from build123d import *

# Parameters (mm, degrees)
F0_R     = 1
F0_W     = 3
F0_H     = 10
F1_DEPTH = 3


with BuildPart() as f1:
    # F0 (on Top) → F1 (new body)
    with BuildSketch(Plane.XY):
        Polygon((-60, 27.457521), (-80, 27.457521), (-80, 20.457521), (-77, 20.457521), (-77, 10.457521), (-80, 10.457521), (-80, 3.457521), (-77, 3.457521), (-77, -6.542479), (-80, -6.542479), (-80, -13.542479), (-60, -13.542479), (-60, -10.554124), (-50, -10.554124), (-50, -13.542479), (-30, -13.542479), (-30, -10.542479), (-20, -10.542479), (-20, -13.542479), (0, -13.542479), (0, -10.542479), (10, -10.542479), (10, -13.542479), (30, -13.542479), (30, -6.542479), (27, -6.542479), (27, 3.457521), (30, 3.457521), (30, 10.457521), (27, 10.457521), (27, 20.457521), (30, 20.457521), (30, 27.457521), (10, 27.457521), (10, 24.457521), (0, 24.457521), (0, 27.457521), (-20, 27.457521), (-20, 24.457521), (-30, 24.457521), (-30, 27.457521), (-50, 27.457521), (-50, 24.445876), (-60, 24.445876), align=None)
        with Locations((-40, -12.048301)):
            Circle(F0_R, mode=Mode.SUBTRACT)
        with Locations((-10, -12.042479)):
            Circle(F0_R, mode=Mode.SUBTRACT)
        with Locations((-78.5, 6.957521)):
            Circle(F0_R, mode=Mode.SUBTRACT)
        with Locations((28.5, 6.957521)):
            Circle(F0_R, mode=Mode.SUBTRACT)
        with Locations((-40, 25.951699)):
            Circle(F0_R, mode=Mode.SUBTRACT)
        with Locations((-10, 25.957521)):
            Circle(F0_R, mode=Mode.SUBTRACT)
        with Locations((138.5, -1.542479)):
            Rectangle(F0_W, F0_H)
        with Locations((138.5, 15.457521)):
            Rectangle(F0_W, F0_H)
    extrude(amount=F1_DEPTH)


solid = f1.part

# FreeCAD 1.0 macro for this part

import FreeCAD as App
import Part
import Sketcher

doc = App.newDocument("Part")
body = doc.addObject("PartDesign::Body", "Body")
body.AllowCompound = True

sketch1 = doc.addObject("Sketcher::SketchObject", "Sketch")
body.addObject(sketch1)
sketch1.AttachmentSupport = (doc.XY_Plane, [""])
sketch1.MapMode = "FlatFace"
sketch1.addGeometry([
    Part.LineSegment(App.Vector(-60, 27.457521, 0), App.Vector(-80, 27.457521, 0)),
    Part.LineSegment(App.Vector(-80, 27.457521, 0), App.Vector(-80, 20.457521, 0)),
    Part.LineSegment(App.Vector(-80, 20.457521, 0), App.Vector(-77, 20.457521, 0)),
    Part.LineSegment(App.Vector(-77, 20.457521, 0), App.Vector(-77, 10.457521, 0)),
    Part.LineSegment(App.Vector(-77, 10.457521, 0), App.Vector(-80, 10.457521, 0)),
    Part.LineSegment(App.Vector(-80, 10.457521, 0), App.Vector(-80, 3.457521, 0)),
    Part.LineSegment(App.Vector(-80, 3.457521, 0), App.Vector(-77, 3.457521, 0)),
    Part.LineSegment(App.Vector(-77, 3.457521, 0), App.Vector(-77, -6.542479, 0)),
    Part.LineSegment(App.Vector(-77, -6.542479, 0), App.Vector(-80, -6.542479, 0)),
    Part.LineSegment(App.Vector(-80, -6.542479, 0), App.Vector(-80, -13.542479, 0)),
    Part.LineSegment(App.Vector(-80, -13.542479, 0), App.Vector(-60, -13.542479, 0)),
    Part.LineSegment(App.Vector(-60, -13.542479, 0), App.Vector(-60, -10.554124, 0)),
    Part.LineSegment(App.Vector(-60, -10.554124, 0), App.Vector(-50, -10.554124, 0)),
    Part.LineSegment(App.Vector(-50, -10.554124, 0), App.Vector(-50, -13.542479, 0)),
    Part.LineSegment(App.Vector(-50, -13.542479, 0), App.Vector(-30, -13.542479, 0)),
    Part.LineSegment(App.Vector(-30, -13.542479, 0), App.Vector(-30, -10.542479, 0)),
    Part.LineSegment(App.Vector(-30, -10.542479, 0), App.Vector(-20, -10.542479, 0)),
    Part.LineSegment(App.Vector(-20, -10.542479, 0), App.Vector(-20, -13.542479, 0)),
    Part.LineSegment(App.Vector(-20, -13.542479, 0), App.Vector(0, -13.542479, 0)),
    Part.LineSegment(App.Vector(0, -13.542479, 0), App.Vector(0, -10.542479, 0)),
    Part.LineSegment(App.Vector(0, -10.542479, 0), App.Vector(10, -10.542479, 0)),
    Part.LineSegment(App.Vector(10, -10.542479, 0), App.Vector(10, -13.542479, 0)),
    Part.LineSegment(App.Vector(10, -13.542479, 0), App.Vector(30, -13.542479, 0)),
    Part.LineSegment(App.Vector(30, -13.542479, 0), App.Vector(30, -6.542479, 0)),
    Part.LineSegment(App.Vector(30, -6.542479, 0), App.Vector(27, -6.542479, 0)),
    Part.LineSegment(App.Vector(27, -6.542479, 0), App.Vector(27, 3.457521, 0)),
    Part.LineSegment(App.Vector(27, 3.457521, 0), App.Vector(30, 3.457521, 0)),
    Part.LineSegment(App.Vector(30, 3.457521, 0), App.Vector(30, 10.457521, 0)),
    Part.LineSegment(App.Vector(30, 10.457521, 0), App.Vector(27, 10.457521, 0)),
    Part.LineSegment(App.Vector(27, 10.457521, 0), App.Vector(27, 20.457521, 0)),
    Part.LineSegment(App.Vector(27, 20.457521, 0), App.Vector(30, 20.457521, 0)),
    Part.LineSegment(App.Vector(30, 20.457521, 0), App.Vector(30, 27.457521, 0)),
    Part.LineSegment(App.Vector(30, 27.457521, 0), App.Vector(10, 27.457521, 0)),
    Part.LineSegment(App.Vector(10, 27.457521, 0), App.Vector(10, 24.457521, 0)),
    Part.LineSegment(App.Vector(10, 24.457521, 0), App.Vector(0, 24.457521, 0)),
    Part.LineSegment(App.Vector(0, 24.457521, 0), App.Vector(0, 27.457521, 0)),
    Part.LineSegment(App.Vector(0, 27.457521, 0), App.Vector(-20, 27.457521, 0)),
    Part.LineSegment(App.Vector(-20, 27.457521, 0), App.Vector(-20, 24.457521, 0)),
    Part.LineSegment(App.Vector(-20, 24.457521, 0), App.Vector(-30, 24.457521, 0)),
    Part.LineSegment(App.Vector(-30, 24.457521, 0), App.Vector(-30, 27.457521, 0)),
    Part.LineSegment(App.Vector(-30, 27.457521, 0), App.Vector(-50, 27.457521, 0)),
    Part.LineSegment(App.Vector(-50, 27.457521, 0), App.Vector(-50, 24.445876, 0)),
    Part.LineSegment(App.Vector(-50, 24.445876, 0), App.Vector(-60, 24.445876, 0)),
    Part.LineSegment(App.Vector(-60, 24.445876, 0), App.Vector(-60, 27.457521, 0)),
    Part.Circle(App.Vector(-40, -12.048301, 0), App.Vector(0, 0, 1), 1),
    Part.Circle(App.Vector(-10, -12.042479, 0), App.Vector(0, 0, 1), 1),
    Part.Circle(App.Vector(-78.5, 6.957521, 0), App.Vector(0, 0, 1), 1),
    Part.Circle(App.Vector(-40, 25.951699, 0), App.Vector(0, 0, 1), 1),
    Part.Circle(App.Vector(28.5, 6.957521, 0), App.Vector(0, 0, 1), 1),
    Part.Circle(App.Vector(-10, 25.957521, 0), App.Vector(0, 0, 1), 1),
    Part.LineSegment(App.Vector(137, 3.457521, 0), App.Vector(137, -6.542479, 0)),
    Part.LineSegment(App.Vector(137, -6.542479, 0), App.Vector(140, -6.542479, 0)),
    Part.LineSegment(App.Vector(140, -6.542479, 0), App.Vector(140, 3.457521, 0)),
    Part.LineSegment(App.Vector(140, 3.457521, 0), App.Vector(137, 3.457521, 0)),
    Part.LineSegment(App.Vector(137, 20.457521, 0), App.Vector(137, 10.457521, 0)),
    Part.LineSegment(App.Vector(137, 10.457521, 0), App.Vector(140, 10.457521, 0)),
    Part.LineSegment(App.Vector(140, 10.457521, 0), App.Vector(140, 20.457521, 0)),
    Part.LineSegment(App.Vector(140, 20.457521, 0), App.Vector(137, 20.457521, 0)),
], False)
sketch1.addConstraint([
    Sketcher.Constraint("Coincident", 0, 2, 1, 1),
    Sketcher.Constraint("Coincident", 1, 2, 2, 1),
    Sketcher.Constraint("Coincident", 2, 2, 3, 1),
    Sketcher.Constraint("Coincident", 3, 2, 4, 1),
    Sketcher.Constraint("Coincident", 4, 2, 5, 1),
    Sketcher.Constraint("Coincident", 5, 2, 6, 1),
    Sketcher.Constraint("Coincident", 6, 2, 7, 1),
    Sketcher.Constraint("Coincident", 7, 2, 8, 1),
    Sketcher.Constraint("Coincident", 8, 2, 9, 1),
    Sketcher.Constraint("Coincident", 9, 2, 10, 1),
    Sketcher.Constraint("Coincident", 10, 2, 11, 1),
    Sketcher.Constraint("Coincident", 11, 2, 12, 1),
    Sketcher.Constraint("Coincident", 12, 2, 13, 1),
    Sketcher.Constraint("Coincident", 13, 2, 14, 1),
    Sketcher.Constraint("Coincident", 14, 2, 15, 1),
    Sketcher.Constraint("Coincident", 15, 2, 16, 1),
    Sketcher.Constraint("Coincident", 16, 2, 17, 1),
    Sketcher.Constraint("Coincident", 17, 2, 18, 1),
    Sketcher.Constraint("Coincident", 18, 2, 19, 1),
    Sketcher.Constraint("Coincident", 19, 2, 20, 1),
    Sketcher.Constraint("Coincident", 20, 2, 21, 1),
    Sketcher.Constraint("Coincident", 21, 2, 22, 1),
    Sketcher.Constraint("Coincident", 22, 2, 23, 1),
    Sketcher.Constraint("Coincident", 23, 2, 24, 1),
    Sketcher.Constraint("Coincident", 24, 2, 25, 1),
    Sketcher.Constraint("Coincident", 25, 2, 26, 1),
    Sketcher.Constraint("Coincident", 26, 2, 27, 1),
    Sketcher.Constraint("Coincident", 27, 2, 28, 1),
    Sketcher.Constraint("Coincident", 28, 2, 29, 1),
    Sketcher.Constraint("Coincident", 29, 2, 30, 1),
    Sketcher.Constraint("Coincident", 30, 2, 31, 1),
    Sketcher.Constraint("Coincident", 31, 2, 32, 1),
    Sketcher.Constraint("Coincident", 32, 2, 33, 1),
    Sketcher.Constraint("Coincident", 33, 2, 34, 1),
    Sketcher.Constraint("Coincident", 34, 2, 35, 1),
    Sketcher.Constraint("Coincident", 35, 2, 36, 1),
    Sketcher.Constraint("Coincident", 36, 2, 37, 1),
    Sketcher.Constraint("Coincident", 37, 2, 38, 1),
    Sketcher.Constraint("Coincident", 38, 2, 39, 1),
    Sketcher.Constraint("Coincident", 39, 2, 40, 1),
    Sketcher.Constraint("Coincident", 40, 2, 41, 1),
    Sketcher.Constraint("Coincident", 41, 2, 42, 1),
    Sketcher.Constraint("Coincident", 42, 2, 43, 1),
    Sketcher.Constraint("Coincident", 43, 2, 0, 1),
    Sketcher.Constraint("Coincident", 50, 2, 51, 1),
    Sketcher.Constraint("Coincident", 51, 2, 52, 1),
    Sketcher.Constraint("Coincident", 52, 2, 53, 1),
    Sketcher.Constraint("Coincident", 53, 2, 50, 1),
    Sketcher.Constraint("Coincident", 54, 2, 55, 1),
    Sketcher.Constraint("Coincident", 55, 2, 56, 1),
    Sketcher.Constraint("Coincident", 56, 2, 57, 1),
    Sketcher.Constraint("Coincident", 57, 2, 54, 1),
    Sketcher.Constraint("Horizontal", 0),
    Sketcher.Constraint("Vertical", 1),
    Sketcher.Constraint("Horizontal", 2),
    Sketcher.Constraint("Vertical", 3),
    Sketcher.Constraint("Horizontal", 4),
    Sketcher.Constraint("Vertical", 5),
    Sketcher.Constraint("Horizontal", 6),
    Sketcher.Constraint("Vertical", 7),
    Sketcher.Constraint("Horizontal", 8),
    Sketcher.Constraint("Vertical", 9),
    Sketcher.Constraint("Horizontal", 10),
    Sketcher.Constraint("Vertical", 11),
    Sketcher.Constraint("Horizontal", 12),
    Sketcher.Constraint("Vertical", 13),
    Sketcher.Constraint("Horizontal", 14),
    Sketcher.Constraint("Vertical", 15),
    Sketcher.Constraint("Horizontal", 16),
    Sketcher.Constraint("Vertical", 17),
    Sketcher.Constraint("Horizontal", 18),
    Sketcher.Constraint("Vertical", 19),
    Sketcher.Constraint("Horizontal", 20),
    Sketcher.Constraint("Vertical", 21),
    Sketcher.Constraint("Horizontal", 22),
    Sketcher.Constraint("Vertical", 23),
    Sketcher.Constraint("Horizontal", 24),
    Sketcher.Constraint("Vertical", 25),
    Sketcher.Constraint("Horizontal", 26),
    Sketcher.Constraint("Vertical", 27),
    Sketcher.Constraint("Horizontal", 28),
    Sketcher.Constraint("Vertical", 29),
    Sketcher.Constraint("Horizontal", 30),
    Sketcher.Constraint("Vertical", 31),
    Sketcher.Constraint("Horizontal", 32),
    Sketcher.Constraint("Vertical", 33),
    Sketcher.Constraint("Horizontal", 34),
    Sketcher.Constraint("Vertical", 35),
    Sketcher.Constraint("Horizontal", 36),
    Sketcher.Constraint("Vertical", 37),
    Sketcher.Constraint("Horizontal", 38),
    Sketcher.Constraint("Vertical", 39),
    Sketcher.Constraint("Horizontal", 40),
    Sketcher.Constraint("Vertical", 41),
    Sketcher.Constraint("Horizontal", 42),
    Sketcher.Constraint("Vertical", 43),
    Sketcher.Constraint("Vertical", 50),
    Sketcher.Constraint("Horizontal", 51),
    Sketcher.Constraint("Vertical", 52),
    Sketcher.Constraint("Horizontal", 53),
    Sketcher.Constraint("Vertical", 54),
    Sketcher.Constraint("Horizontal", 55),
    Sketcher.Constraint("Vertical", 56),
    Sketcher.Constraint("Horizontal", 57),
    Sketcher.Constraint("Equal", 44, 45),
    Sketcher.Constraint("Equal", 45, 46),
    Sketcher.Constraint("Equal", 46, 47),
    Sketcher.Constraint("Equal", 47, 48),
    Sketcher.Constraint("Equal", 48, 49),
    Sketcher.Constraint("Symmetric", 14, 2, 22, 2, -2),
    Sketcher.Constraint("Symmetric", 31, 2, 39, 2, -2),
    Sketcher.Constraint("PointOnObject", 18, 2, -2),
    Sketcher.Constraint("PointOnObject", 34, 2, -2),
    Sketcher.Constraint("Horizontal", 46, 3, 48, 3),
    Sketcher.Constraint("Horizontal", 10, 2, 13, 2),
    Sketcher.Constraint("Horizontal", 14, 2, 17, 2),
    Sketcher.Constraint("Horizontal", 16, 2, 19, 2),
    Sketcher.Constraint("Horizontal", 8, 2, 23, 2),
    Sketcher.Constraint("Horizontal", 6, 2, 25, 2),
    Sketcher.Constraint("Horizontal", 4, 2, 27, 2),
    Sketcher.Constraint("Horizontal", 2, 2, 29, 2),
    Sketcher.Constraint("Horizontal", 0, 2, 31, 2),
    Sketcher.Constraint("Horizontal", 32, 2, 35, 2),
    Sketcher.Constraint("Horizontal", 34, 2, 37, 2),
    Sketcher.Constraint("Horizontal", 24, 2, 50, 2),
    Sketcher.Constraint("Horizontal", 26, 2, 52, 2),
    Sketcher.Constraint("Horizontal", 28, 2, 54, 2),
    Sketcher.Constraint("Horizontal", 30, 2, 56, 2),
    Sketcher.Constraint("Vertical", 44, 3, 47, 3),
    Sketcher.Constraint("Vertical", 45, 3, 49, 3),
    Sketcher.Constraint("Vertical", 1, 2, 4, 2),
    Sketcher.Constraint("Vertical", 3, 2, 6, 2),
    Sketcher.Constraint("Vertical", 5, 2, 8, 2),
    Sketcher.Constraint("Vertical", 23, 2, 26, 2),
    Sketcher.Constraint("Vertical", 25, 2, 28, 2),
    Sketcher.Constraint("Vertical", 27, 2, 30, 2),
    Sketcher.Constraint("Vertical", 21, 2, 32, 2),
    Sketcher.Constraint("Vertical", 17, 2, 36, 2),
    Sketcher.Constraint("Vertical", 13, 2, 40, 2),
    Sketcher.Constraint("Vertical", 11, 2, 42, 2),
    Sketcher.Constraint("Vertical", 53, 2, 54, 2),
    Sketcher.Constraint("Vertical", 52, 2, 55, 2),
    Sketcher.Constraint("Equal", 10, 14),
    Sketcher.Constraint("Equal", 12, 16),
    Sketcher.Constraint("Equal", 14, 18),
    Sketcher.Constraint("Equal", 16, 20),
    Sketcher.Constraint("Equal", 8, 24),
    Sketcher.Constraint("Equal", 30, 51),
    Sketcher.Constraint("Equal", 42, 3),
    Sketcher.Constraint("Equal", 1, 5),
    Sketcher.Constraint("Equal", 3, 7),
    Sketcher.Constraint("Equal", 5, 9),
    Sketcher.Constraint("Equal", 57, 15),
    Sketcher.Constraint("Equal", 21, 33),
    Sketcher.Constraint("Diameter", 44, 2.0),
    Sketcher.Constraint("DistanceX", 0, 2, 0, 1, 20.0),
    Sketcher.Constraint("DistanceX", 2, 1, 2, 2, 3.0),
    Sketcher.Constraint("DistanceX", 12, 1, 12, 2, 10.0),
    Sketcher.Constraint("DistanceY", 1, 2, 1, 1, 7.0),
    Sketcher.Constraint("DistanceX", 44, 3, -1, 1, 40.0),
    Sketcher.Constraint("DistanceX", 45, 3, -1, 1, 10.0),
    Sketcher.Constraint("DistanceX", -1, 1, 50, 2, 137.0),
    Sketcher.Constraint("DistanceY", 45, 3, 46, 3, 19.0),
    Sketcher.Constraint("DistanceY", 44, 3, 47, 3, 38.0),
    Sketcher.Constraint("DistanceX", 46, 3, 48, 3, 107.0),
    Sketcher.Constraint("DistanceY", 45, 3, 49, 3, 38.0),
    Sketcher.Constraint("DistanceX", 46, 3, -1, 1, 78.5),
    Sketcher.Constraint("DistanceY", 46, 3, 0, 2, 20.5),
    Sketcher.Constraint("DistanceY", 44, 3, -1, 1, 12.048301),
    Sketcher.Constraint("DistanceY", 11, 1, 11, 2, 2.988355),
    Sketcher.Constraint("DistanceY", 41, 2, 41, 1, 3.011645),
    Sketcher.Constraint("DistanceY", 45, 3, -1, 1, 12.042479),
])
pad1 = doc.addObject("PartDesign::Pad", "Pad")
body.addObject(pad1)
pad1.Profile = sketch1
pad1.Length = 3

doc.recompute()
